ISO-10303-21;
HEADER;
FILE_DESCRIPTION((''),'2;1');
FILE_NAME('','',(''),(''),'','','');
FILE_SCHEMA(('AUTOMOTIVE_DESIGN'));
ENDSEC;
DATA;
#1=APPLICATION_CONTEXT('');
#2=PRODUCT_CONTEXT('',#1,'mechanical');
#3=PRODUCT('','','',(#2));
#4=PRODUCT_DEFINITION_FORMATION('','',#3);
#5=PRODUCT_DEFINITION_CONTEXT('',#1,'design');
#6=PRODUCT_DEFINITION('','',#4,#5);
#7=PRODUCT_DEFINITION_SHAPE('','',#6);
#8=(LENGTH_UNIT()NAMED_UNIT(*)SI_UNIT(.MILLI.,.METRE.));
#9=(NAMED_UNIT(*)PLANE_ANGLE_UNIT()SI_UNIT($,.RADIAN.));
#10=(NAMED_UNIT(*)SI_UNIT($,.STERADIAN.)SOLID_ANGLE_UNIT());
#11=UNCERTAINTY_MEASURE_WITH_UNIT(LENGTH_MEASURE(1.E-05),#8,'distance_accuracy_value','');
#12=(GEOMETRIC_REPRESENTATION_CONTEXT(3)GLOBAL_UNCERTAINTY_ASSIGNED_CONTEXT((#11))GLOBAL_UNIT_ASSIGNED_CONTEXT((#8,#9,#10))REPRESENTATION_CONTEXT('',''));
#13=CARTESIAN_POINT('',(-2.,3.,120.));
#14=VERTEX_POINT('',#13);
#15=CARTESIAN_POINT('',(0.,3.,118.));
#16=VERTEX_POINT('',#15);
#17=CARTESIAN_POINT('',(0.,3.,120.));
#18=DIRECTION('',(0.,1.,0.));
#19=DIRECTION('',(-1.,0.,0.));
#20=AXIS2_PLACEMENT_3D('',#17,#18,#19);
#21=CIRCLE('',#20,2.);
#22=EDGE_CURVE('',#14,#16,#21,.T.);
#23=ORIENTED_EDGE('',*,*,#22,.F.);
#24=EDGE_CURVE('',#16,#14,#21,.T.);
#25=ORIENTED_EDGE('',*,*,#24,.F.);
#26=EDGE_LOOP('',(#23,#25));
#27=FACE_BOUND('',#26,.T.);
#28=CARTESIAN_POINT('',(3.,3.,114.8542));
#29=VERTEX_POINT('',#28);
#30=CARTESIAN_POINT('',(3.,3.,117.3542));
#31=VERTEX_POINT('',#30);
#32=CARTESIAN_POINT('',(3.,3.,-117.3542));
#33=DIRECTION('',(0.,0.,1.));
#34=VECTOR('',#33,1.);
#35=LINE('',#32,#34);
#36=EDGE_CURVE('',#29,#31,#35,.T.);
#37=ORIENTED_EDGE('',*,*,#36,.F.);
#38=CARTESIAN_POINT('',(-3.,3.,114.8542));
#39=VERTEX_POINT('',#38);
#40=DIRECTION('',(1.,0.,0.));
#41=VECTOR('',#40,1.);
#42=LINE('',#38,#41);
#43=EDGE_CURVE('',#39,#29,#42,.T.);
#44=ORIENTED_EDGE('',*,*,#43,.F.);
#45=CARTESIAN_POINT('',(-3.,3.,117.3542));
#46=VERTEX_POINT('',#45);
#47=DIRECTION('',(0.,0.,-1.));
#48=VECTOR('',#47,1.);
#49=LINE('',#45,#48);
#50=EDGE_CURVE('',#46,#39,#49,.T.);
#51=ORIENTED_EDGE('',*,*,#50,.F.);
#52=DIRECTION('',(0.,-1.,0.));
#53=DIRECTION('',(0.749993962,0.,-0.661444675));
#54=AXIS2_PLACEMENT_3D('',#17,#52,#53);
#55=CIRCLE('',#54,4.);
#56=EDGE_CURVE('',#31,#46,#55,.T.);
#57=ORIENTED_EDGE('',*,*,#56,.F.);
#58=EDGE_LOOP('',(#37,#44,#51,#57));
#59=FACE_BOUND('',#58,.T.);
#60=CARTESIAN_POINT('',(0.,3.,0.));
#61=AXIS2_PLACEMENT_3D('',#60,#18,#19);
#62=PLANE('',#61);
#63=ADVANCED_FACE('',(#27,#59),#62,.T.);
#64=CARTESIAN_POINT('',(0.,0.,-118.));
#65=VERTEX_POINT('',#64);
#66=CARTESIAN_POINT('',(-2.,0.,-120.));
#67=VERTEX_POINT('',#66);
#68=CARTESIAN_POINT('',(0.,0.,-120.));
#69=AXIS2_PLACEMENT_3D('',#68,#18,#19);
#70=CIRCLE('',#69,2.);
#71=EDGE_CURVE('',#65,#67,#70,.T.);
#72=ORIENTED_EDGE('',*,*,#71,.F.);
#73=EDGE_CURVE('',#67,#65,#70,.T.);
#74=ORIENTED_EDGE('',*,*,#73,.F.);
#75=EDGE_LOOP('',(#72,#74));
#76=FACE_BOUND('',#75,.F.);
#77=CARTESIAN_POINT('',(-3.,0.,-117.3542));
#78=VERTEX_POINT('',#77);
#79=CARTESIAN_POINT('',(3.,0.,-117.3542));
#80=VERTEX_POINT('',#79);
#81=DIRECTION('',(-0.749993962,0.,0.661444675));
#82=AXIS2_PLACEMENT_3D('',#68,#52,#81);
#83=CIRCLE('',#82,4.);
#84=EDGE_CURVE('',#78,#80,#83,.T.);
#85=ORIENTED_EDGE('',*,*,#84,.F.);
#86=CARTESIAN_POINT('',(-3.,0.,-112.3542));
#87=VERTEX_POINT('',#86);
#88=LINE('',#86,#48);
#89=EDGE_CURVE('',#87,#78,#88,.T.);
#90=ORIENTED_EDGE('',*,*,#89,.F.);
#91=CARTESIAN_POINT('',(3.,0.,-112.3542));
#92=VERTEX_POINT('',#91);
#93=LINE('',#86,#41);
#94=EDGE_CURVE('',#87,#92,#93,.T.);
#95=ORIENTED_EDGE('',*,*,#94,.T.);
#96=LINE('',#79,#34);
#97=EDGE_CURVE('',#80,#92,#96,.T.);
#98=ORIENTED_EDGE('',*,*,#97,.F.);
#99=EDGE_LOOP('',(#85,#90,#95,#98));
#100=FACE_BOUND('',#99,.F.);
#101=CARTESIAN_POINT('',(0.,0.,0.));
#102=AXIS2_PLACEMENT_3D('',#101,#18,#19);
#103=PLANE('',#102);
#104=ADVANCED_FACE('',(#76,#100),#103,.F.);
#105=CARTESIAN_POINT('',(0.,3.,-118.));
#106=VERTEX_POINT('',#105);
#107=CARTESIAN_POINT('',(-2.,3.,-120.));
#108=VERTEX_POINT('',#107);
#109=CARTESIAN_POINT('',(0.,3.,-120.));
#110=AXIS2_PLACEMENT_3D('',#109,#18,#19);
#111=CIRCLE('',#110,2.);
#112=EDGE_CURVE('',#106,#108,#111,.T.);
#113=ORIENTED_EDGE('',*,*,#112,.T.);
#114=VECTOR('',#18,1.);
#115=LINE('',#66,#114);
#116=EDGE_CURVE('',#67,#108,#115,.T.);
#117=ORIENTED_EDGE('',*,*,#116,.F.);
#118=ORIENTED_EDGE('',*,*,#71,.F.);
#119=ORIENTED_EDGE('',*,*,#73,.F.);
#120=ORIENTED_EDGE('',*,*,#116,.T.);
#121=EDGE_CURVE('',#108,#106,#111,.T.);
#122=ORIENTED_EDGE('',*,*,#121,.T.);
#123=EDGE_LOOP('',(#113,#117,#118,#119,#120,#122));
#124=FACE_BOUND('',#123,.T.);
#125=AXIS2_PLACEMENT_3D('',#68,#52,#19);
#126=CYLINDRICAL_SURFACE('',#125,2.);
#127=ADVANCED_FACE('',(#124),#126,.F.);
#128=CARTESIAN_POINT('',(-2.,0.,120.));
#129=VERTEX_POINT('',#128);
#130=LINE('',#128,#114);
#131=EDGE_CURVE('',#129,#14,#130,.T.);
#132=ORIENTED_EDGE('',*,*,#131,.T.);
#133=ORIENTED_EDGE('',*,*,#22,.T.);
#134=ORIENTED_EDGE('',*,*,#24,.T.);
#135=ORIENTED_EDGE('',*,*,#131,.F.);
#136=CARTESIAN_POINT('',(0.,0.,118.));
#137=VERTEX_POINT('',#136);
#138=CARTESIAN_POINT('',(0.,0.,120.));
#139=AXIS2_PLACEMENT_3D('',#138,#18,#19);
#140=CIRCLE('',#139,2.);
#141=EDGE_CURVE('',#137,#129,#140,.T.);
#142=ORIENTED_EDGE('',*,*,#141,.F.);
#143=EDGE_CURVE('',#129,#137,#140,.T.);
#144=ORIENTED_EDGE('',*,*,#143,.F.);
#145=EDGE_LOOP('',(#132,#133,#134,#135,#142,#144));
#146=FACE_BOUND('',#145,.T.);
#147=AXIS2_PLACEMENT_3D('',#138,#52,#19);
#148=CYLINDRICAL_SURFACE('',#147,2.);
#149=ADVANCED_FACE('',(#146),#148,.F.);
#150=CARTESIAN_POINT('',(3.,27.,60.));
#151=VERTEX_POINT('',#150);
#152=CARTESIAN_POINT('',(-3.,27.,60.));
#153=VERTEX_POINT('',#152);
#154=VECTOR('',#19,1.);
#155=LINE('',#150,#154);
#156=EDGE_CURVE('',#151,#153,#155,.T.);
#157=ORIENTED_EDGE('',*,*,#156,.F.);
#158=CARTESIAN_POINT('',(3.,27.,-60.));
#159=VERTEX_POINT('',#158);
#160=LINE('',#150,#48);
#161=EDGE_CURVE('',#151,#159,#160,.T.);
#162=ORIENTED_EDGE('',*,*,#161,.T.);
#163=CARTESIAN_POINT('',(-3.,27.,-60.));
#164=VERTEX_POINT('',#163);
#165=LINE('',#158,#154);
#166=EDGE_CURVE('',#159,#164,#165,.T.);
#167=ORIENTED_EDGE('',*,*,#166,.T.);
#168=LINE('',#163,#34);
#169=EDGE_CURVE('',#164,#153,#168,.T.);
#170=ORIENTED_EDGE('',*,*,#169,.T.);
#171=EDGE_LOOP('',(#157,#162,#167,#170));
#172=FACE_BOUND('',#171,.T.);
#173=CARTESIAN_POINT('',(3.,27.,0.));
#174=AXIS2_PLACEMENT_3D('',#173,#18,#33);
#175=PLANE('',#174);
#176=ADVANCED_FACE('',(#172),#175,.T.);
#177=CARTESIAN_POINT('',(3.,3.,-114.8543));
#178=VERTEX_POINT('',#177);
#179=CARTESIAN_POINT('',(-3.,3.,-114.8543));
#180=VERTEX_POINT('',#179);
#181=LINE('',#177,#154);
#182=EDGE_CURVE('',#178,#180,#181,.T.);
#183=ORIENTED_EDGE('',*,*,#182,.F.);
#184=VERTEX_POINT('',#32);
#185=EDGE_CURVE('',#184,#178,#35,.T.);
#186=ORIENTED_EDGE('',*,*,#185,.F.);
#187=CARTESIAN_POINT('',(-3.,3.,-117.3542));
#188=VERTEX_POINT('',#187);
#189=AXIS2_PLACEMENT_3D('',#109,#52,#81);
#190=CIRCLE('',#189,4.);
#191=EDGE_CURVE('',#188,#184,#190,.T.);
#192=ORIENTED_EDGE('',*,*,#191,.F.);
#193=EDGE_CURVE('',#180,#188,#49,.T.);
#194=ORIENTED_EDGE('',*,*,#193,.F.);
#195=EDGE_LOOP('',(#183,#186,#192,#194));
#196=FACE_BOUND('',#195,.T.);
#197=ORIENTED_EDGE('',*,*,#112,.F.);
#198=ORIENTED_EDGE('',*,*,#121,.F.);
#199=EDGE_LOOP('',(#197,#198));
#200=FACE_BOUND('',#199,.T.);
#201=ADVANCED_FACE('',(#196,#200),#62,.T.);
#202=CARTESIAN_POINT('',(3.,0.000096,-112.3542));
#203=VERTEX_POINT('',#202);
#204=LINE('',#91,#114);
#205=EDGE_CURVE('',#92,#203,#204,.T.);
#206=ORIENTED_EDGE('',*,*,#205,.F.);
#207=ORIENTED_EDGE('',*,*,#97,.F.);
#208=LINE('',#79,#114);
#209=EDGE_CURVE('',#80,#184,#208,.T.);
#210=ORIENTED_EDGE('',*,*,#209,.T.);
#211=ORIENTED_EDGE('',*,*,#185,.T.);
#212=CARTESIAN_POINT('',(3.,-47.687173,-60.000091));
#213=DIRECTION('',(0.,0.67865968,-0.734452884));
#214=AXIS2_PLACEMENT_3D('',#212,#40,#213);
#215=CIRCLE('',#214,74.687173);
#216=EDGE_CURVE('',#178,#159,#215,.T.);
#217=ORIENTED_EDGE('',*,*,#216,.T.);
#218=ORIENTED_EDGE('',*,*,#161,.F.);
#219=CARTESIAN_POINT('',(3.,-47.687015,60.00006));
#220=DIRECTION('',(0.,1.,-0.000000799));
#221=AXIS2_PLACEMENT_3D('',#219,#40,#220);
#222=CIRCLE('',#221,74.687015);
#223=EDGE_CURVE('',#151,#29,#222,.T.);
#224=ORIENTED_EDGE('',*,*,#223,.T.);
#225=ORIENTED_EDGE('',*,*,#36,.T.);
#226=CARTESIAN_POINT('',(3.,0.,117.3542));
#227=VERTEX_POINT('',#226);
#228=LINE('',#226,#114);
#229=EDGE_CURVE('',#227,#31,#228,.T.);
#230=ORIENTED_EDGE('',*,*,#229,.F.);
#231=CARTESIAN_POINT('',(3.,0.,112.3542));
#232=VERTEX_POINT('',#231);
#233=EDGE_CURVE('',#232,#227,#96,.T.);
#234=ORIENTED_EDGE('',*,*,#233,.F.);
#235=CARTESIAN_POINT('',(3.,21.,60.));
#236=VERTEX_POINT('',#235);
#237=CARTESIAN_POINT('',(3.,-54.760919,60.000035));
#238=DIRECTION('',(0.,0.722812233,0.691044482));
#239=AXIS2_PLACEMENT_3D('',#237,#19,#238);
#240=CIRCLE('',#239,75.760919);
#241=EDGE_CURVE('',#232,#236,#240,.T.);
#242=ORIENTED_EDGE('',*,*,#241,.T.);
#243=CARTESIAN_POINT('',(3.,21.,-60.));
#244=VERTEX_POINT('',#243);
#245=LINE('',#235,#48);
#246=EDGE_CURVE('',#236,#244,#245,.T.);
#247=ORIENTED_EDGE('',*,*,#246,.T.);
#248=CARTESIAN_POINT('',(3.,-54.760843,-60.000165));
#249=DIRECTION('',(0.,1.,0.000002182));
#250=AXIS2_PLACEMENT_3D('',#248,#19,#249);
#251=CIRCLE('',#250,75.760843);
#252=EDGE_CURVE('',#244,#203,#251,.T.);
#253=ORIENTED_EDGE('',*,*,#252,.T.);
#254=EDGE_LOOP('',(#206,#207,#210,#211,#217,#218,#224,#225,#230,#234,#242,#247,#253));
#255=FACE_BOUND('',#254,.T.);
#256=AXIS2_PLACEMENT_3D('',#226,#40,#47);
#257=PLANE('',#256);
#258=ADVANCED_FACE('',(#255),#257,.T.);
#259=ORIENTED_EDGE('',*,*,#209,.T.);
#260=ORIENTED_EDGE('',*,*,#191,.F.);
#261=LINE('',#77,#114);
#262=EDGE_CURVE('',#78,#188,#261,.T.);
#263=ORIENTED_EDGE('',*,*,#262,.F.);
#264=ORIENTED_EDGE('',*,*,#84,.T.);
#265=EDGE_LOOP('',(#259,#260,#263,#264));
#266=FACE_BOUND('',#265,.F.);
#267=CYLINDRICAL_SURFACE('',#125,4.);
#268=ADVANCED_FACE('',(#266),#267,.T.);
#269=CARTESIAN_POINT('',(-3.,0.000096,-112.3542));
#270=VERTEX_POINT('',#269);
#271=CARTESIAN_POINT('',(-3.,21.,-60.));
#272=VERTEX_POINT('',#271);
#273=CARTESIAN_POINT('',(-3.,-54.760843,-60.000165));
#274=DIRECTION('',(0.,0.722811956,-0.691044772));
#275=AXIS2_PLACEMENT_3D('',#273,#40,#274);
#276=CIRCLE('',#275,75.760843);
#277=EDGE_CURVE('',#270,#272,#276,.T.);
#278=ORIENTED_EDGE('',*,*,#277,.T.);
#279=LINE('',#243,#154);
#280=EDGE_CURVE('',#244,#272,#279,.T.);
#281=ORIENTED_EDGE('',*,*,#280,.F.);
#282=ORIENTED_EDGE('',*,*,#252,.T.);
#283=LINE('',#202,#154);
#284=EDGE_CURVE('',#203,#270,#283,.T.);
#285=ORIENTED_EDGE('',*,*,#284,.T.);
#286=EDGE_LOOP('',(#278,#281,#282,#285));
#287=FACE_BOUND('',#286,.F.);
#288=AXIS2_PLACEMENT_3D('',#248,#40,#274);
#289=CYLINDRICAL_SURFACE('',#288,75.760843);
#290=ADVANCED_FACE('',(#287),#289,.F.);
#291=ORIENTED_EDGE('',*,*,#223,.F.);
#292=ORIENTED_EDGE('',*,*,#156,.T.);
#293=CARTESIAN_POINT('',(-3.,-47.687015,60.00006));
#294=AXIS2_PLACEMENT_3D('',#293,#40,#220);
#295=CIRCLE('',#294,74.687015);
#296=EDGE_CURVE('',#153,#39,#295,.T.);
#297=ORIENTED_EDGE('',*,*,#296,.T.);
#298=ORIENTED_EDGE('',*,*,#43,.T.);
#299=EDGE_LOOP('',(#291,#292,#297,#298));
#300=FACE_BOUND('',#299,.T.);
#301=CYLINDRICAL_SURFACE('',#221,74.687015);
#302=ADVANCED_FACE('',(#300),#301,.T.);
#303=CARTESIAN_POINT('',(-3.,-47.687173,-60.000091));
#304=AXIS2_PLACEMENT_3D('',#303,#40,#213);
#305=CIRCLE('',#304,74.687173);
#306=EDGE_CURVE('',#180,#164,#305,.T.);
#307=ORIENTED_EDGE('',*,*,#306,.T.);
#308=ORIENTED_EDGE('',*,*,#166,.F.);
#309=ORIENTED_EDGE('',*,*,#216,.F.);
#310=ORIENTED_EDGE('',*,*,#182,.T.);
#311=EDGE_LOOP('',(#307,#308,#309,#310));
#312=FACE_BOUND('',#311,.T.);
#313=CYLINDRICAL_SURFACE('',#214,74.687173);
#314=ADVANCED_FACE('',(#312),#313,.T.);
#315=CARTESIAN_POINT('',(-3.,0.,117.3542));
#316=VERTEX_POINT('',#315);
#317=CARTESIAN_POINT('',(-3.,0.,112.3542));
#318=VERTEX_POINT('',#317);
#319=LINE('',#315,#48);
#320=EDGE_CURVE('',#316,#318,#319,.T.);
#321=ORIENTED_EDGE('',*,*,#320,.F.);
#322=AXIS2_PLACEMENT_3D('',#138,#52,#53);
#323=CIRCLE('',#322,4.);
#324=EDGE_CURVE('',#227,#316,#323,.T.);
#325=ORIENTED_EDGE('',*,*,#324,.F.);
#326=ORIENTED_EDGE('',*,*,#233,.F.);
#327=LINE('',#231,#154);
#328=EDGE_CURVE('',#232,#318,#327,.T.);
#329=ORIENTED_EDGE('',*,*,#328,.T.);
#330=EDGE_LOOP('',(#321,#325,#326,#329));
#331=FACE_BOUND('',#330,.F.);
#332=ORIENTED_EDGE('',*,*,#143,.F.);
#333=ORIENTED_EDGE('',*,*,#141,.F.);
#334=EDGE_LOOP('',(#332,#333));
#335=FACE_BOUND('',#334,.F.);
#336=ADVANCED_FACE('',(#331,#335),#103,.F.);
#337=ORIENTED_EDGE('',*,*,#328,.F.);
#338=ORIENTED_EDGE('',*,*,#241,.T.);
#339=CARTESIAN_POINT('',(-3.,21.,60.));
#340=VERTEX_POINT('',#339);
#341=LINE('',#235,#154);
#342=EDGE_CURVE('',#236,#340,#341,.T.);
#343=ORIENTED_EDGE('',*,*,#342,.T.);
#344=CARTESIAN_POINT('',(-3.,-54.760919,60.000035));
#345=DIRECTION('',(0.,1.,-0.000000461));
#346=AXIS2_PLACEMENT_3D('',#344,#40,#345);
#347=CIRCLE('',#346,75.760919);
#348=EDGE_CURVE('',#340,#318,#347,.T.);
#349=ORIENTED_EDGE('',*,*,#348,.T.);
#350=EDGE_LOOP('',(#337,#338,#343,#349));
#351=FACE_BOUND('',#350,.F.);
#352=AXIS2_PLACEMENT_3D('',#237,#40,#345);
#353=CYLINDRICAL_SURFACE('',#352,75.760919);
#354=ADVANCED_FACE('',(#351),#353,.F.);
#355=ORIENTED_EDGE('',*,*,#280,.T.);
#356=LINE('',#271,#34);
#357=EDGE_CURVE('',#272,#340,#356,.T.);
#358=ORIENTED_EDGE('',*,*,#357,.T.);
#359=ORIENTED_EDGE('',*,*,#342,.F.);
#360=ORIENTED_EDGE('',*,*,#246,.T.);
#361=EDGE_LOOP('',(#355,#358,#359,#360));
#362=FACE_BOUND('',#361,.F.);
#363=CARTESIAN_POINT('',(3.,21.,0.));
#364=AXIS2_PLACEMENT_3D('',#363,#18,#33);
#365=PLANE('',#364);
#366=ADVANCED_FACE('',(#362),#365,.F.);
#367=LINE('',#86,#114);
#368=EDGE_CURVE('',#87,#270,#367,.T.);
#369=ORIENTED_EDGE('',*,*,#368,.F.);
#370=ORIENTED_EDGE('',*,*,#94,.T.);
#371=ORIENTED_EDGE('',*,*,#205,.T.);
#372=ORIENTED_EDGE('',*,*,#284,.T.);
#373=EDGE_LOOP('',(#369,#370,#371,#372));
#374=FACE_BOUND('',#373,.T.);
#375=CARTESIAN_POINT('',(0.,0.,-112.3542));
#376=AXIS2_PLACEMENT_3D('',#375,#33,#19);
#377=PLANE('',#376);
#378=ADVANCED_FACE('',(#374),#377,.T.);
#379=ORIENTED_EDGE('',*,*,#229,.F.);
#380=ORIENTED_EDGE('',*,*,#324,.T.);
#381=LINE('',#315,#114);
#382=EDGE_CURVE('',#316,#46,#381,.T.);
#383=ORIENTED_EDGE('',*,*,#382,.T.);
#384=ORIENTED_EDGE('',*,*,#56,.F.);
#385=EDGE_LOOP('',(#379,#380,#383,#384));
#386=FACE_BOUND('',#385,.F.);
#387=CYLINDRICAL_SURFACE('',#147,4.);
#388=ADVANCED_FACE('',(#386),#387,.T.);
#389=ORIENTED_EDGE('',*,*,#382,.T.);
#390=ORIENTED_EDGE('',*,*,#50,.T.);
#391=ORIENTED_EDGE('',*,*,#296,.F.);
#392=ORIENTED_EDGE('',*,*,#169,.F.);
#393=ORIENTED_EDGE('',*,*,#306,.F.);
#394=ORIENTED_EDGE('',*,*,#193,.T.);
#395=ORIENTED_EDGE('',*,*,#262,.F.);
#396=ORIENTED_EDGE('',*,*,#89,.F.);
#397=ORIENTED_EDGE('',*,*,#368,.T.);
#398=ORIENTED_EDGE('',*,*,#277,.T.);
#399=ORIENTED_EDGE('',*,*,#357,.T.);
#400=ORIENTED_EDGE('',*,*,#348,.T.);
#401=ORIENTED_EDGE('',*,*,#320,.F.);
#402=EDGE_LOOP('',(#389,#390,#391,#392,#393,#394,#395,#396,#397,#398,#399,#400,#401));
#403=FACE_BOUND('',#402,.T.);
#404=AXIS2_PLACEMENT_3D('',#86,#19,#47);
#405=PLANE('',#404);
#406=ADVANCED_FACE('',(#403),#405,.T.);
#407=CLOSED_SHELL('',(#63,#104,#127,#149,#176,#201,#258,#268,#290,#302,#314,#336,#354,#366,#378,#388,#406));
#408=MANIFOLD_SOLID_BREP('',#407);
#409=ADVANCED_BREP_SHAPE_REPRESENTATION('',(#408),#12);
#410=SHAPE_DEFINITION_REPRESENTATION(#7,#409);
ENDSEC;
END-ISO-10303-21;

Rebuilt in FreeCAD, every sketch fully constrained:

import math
import FreeCAD as App
import Part
import Sketcher

doc = App.newDocument("Part")
body = doc.addObject("PartDesign::Body", "Body")
body.AllowCompound = True

sketch1 = body.newObject("Sketcher::SketchObject", "Sketch")
sketch1.AttachmentSupport = (doc.getObject("XZ_Plane"), [""])
sketch1.MapMode = "FlatFace"
sketch1.addGeometry(Part.LineSegment(App.Vector(-3, -112.4, 0), App.Vector(3, -112.4, 0)), False)
sketch1.addGeometry(Part.LineSegment(App.Vector(3, -112.4, 0), App.Vector(3, -117.4, 0)), False)
sketch1.addGeometry(Part.ArcOfCircle(Part.Circle(App.Vector(0, -120, 0), App.Vector(0, 0, 1), 4), math.radians(139), math.radians(401)), False)
sketch1.addGeometry(Part.LineSegment(App.Vector(-3, -117.4, 0), App.Vector(-3, -112.4, 0)), False)
sketch1.addGeometry(Part.Circle(App.Vector(0, -120, 0), App.Vector(0, 0, 1), 2), False)
sketch1.addGeometry(Part.LineSegment(App.Vector(3, 112.4, 0), App.Vector(-3, 112.4, 0)), False)
sketch1.addGeometry(Part.LineSegment(App.Vector(-3, 112.4, 0), App.Vector(-3, 117.4, 0)), False)
sketch1.addGeometry(Part.ArcOfCircle(Part.Circle(App.Vector(0, 120, 0), App.Vector(0, 0, 1), 4), math.radians(-41), math.radians(221)), False)
sketch1.addGeometry(Part.LineSegment(App.Vector(3, 117.4, 0), App.Vector(3, 112.4, 0)), False)
sketch1.addGeometry(Part.Circle(App.Vector(0, 120, 0), App.Vector(0, 0, 1), 2), False)
sketch1.addConstraint(Sketcher.Constraint("Coincident", 0, 2, 1, 1))
sketch1.addConstraint(Sketcher.Constraint("Coincident", 1, 2, 2, 2))
sketch1.addConstraint(Sketcher.Constraint("Coincident", 2, 1, 3, 1))
sketch1.addConstraint(Sketcher.Constraint("Coincident", 3, 2, 0, 1))
sketch1.addConstraint(Sketcher.Constraint("Coincident", 5, 2, 6, 1))
sketch1.addConstraint(Sketcher.Constraint("Coincident", 6, 2, 7, 2))
sketch1.addConstraint(Sketcher.Constraint("Coincident", 7, 1, 8, 1))
sketch1.addConstraint(Sketcher.Constraint("Coincident", 8, 2, 5, 1))
sketch1.addConstraint(Sketcher.Constraint("Horizontal", 0))
sketch1.addConstraint(Sketcher.Constraint("Vertical", 1))
sketch1.addConstraint(Sketcher.Constraint("Vertical", 3))
sketch1.addConstraint(Sketcher.Constraint("Horizontal", 5))
sketch1.addConstraint(Sketcher.Constraint("Vertical", 6))
sketch1.addConstraint(Sketcher.Constraint("Vertical", 8))
sketch1.addConstraint(Sketcher.Constraint("Coincident", 4, 3, 2, 3))
sketch1.addConstraint(Sketcher.Constraint("Coincident", 9, 3, 7, 3))
sketch1.addConstraint(Sketcher.Constraint("Equal", 2, 7))
sketch1.addConstraint(Sketcher.Constraint("Equal", 4, 9))
sketch1.addConstraint(Sketcher.Constraint("Symmetric", 2, 3, 7, 3, -1, 1))
sketch1.addConstraint(Sketcher.Constraint("Symmetric", 0, 2, 5, 2, -1, 1))
sketch1.addConstraint(Sketcher.Constraint("Symmetric", 1, 2, 2, 1, -2))
sketch1.addConstraint(Sketcher.Constraint("Horizontal", 6, 2, 7, 1))
sketch1.addConstraint(Sketcher.Constraint("Diameter", 4, 4.0))
sketch1.addConstraint(Sketcher.Constraint("Radius", 2, 4.0))
sketch1.addConstraint(Sketcher.Constraint("DistanceY", 1, 2, 1, 1, 5.0))
sketch1.addConstraint(Sketcher.Constraint("DistanceY", 2, 3, -1, 1, 120.0))
sketch1.addConstraint(Sketcher.Constraint("DistanceX", -1, 1, 0, 2, 3.0))
pad1 = body.newObject("PartDesign::Pad", "Pad")
pad1.Profile = sketch1
pad1.Length = 3
pad1.Reversed = True

sketch2 = body.newObject("Sketcher::SketchObject", "Sketch001")
sketch2.AttachmentSupport = (doc.getObject("YZ_Plane"), [""])
sketch2.MapMode = "FlatFace"
sketch2.AttachmentOffset = App.Placement(App.Vector(0, 0, 3), App.Rotation())
sketch2.addGeometry(Part.ArcOfCircle(Part.Circle(App.Vector(-47.7, 60, 0), App.Vector(0, 0, 1), 74.7), math.radians(0), math.radians(47)), False)
sketch2.addGeometry(Part.LineSegment(App.Vector(3, 114.9, 0), App.Vector(3, 112.4, 0)), False)
sketch2.addGeometry(Part.LineSegment(App.Vector(3, 112.4, 0), App.Vector(0, 112.4, 0)), False)
sketch2.addGeometry(Part.ArcOfCircle(Part.Circle(App.Vector(-54.8, 60, 0), App.Vector(0, 0, 1), 75.8), math.radians(0), math.radians(44)), False)
sketch2.addGeometry(Part.LineSegment(App.Vector(21, 60, 0), App.Vector(21, -60, 0)), False)
sketch2.addGeometry(Part.ArcOfCircle(Part.Circle(App.Vector(-54.8, -60, 0), App.Vector(0, 0, 1), 75.8), math.radians(-44), math.radians(0)), False)
sketch2.addGeometry(Part.LineSegment(App.Vector(0, -112.4, 0), App.Vector(3, -112.4, 0)), False)
sketch2.addGeometry(Part.LineSegment(App.Vector(3, -112.4, 0), App.Vector(3, -114.9, 0)), False)
sketch2.addGeometry(Part.ArcOfCircle(Part.Circle(App.Vector(-47.7, -60, 0), App.Vector(0, 0, 1), 74.7), math.radians(-47), math.radians(0)), False)
sketch2.addGeometry(Part.LineSegment(App.Vector(27, -60, 0), App.Vector(27, 60, 0)), False)
sketch2.addConstraint(Sketcher.Constraint("Coincident", 0, 2, 1, 1))
sketch2.addConstraint(Sketcher.Constraint("Coincident", 1, 2, 2, 1))
sketch2.addConstraint(Sketcher.Constraint("Coincident", 2, 2, 3, 2))
sketch2.addConstraint(Sketcher.Constraint("Tangent", 3, 1, 4, 1))
sketch2.addConstraint(Sketcher.Constraint("Tangent", 4, 2, 5, 2))
sketch2.addConstraint(Sketcher.Constraint("Coincident", 5, 1, 6, 1))
sketch2.addConstraint(Sketcher.Constraint("Coincident", 6, 2, 7, 1))
sketch2.addConstraint(Sketcher.Constraint("Coincident", 7, 2, 8, 1))
sketch2.addConstraint(Sketcher.Constraint("Tangent", 8, 2, 9, 1))
sketch2.addConstraint(Sketcher.Constraint("Tangent", 9, 2, 0, 1))
sketch2.addConstraint(Sketcher.Constraint("Vertical", 1))
sketch2.addConstraint(Sketcher.Constraint("Horizontal", 2))
sketch2.addConstraint(Sketcher.Constraint("Vertical", 4))
sketch2.addConstraint(Sketcher.Constraint("Horizontal", 6))
sketch2.addConstraint(Sketcher.Constraint("Vertical", 7))
sketch2.addConstraint(Sketcher.Constraint("Vertical", 9))
sketch2.addConstraint(Sketcher.Constraint("Equal", 3, 5))
sketch2.addConstraint(Sketcher.Constraint("Equal", 0, 8))
sketch2.addConstraint(Sketcher.Constraint("Symmetric", 2, 2, 5, 1, -1, 1))
sketch2.addConstraint(Sketcher.Constraint("Symmetric", 0, 2, 7, 2, -1))
sketch2.addConstraint(Sketcher.Constraint("PointOnObject", 2, 2, -2))
sketch2.addConstraint(Sketcher.Constraint("Horizontal", 0, 3, 3, 3))
sketch2.addConstraint(Sketcher.Constraint("DistanceY", 4, 2, 4, 1, 120.0))
sketch2.addConstraint(Sketcher.Constraint("DistanceX", -1, 1, 8, 2, 27.0))
sketch2.addConstraint(Sketcher.Constraint("DistanceX", 4, 2, 8, 2, 6.0))
sketch2.addConstraint(Sketcher.Constraint("DistanceX", 2, 2, 2, 1, 3.0))
sketch2.addConstraint(Sketcher.Constraint("DistanceY", 1, 2, 1, 1, 2.5))
sketch2.addConstraint(Sketcher.Constraint("Radius", 3, 75.761))
pad2 = body.newObject("PartDesign::Pad", "Pad001")
pad2.Profile = sketch2
pad2.Length = 6
pad2.Reversed = True

doc.recompute()
